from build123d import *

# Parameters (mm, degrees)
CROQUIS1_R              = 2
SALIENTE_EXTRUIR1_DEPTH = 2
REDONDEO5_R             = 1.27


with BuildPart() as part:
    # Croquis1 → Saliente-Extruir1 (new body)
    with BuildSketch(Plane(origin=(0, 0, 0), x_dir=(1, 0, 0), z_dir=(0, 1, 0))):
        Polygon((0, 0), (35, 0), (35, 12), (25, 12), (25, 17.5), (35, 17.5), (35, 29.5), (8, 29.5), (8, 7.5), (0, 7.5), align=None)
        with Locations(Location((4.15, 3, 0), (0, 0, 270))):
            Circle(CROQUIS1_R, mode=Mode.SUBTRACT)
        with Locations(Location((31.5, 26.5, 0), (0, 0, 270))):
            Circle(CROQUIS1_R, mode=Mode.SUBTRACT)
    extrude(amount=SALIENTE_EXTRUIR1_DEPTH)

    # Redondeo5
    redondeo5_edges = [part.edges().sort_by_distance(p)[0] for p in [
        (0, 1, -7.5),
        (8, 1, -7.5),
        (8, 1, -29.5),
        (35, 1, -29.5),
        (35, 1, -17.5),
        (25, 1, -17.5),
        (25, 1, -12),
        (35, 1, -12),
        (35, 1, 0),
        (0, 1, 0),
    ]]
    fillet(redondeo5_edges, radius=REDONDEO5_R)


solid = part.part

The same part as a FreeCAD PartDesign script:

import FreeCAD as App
import Part
import Sketcher
Q = App.Units.Quantity


def edges_at(feature, points):
    """Names of the edges that pass closest to the given points."""
    edges = feature.Shape.Edges
    near = lambda p: min(range(len(edges)), key=lambda i: edges[i].distToShape(Part.Vertex(*p))[0])
    return sorted({f"Edge{near(p) + 1}" for p in points})

doc = App.newDocument("Part")
body = doc.addObject("PartDesign::Body", "Body")

# Sketch on XZ plane
sketch1 = body.newObject("Sketcher::SketchObject", "Sketch")
sketch1.AttachmentSupport = (doc.getObject("XZ_Plane"), [""])
sketch1.MapMode = "FlatFace"
sketch1.addGeometry([
    Part.LineSegment(App.Vector(0, 0, 0), App.Vector(35, 0, 0)),  # 0
    Part.LineSegment(App.Vector(35, 0, 0), App.Vector(35, -12, 0)),  # 1
    Part.LineSegment(App.Vector(35, -12, 0), App.Vector(25, -12, 0)),  # 2
    Part.LineSegment(App.Vector(25, -12, 0), App.Vector(25, -17.5, 0)),  # 3
    Part.LineSegment(App.Vector(25, -17.5, 0), App.Vector(35, -17.5, 0)),  # 4
    Part.LineSegment(App.Vector(35, -17.5, 0), App.Vector(35, -29.5, 0)),  # 5
    Part.LineSegment(App.Vector(35, -29.5, 0), App.Vector(8, -29.5, 0)),  # 6
    Part.LineSegment(App.Vector(8, -29.5, 0), App.Vector(8, -7.5, 0)),  # 7
    Part.LineSegment(App.Vector(8, -7.5, 0), App.Vector(0, -7.5, 0)),  # 8
    Part.LineSegment(App.Vector(0, -7.5, 0), App.Vector(0, 0, 0)),  # 9
    Part.Circle(App.Vector(4.15, -3, 0), App.Vector(0, 0, 1), 2),  # 10
    Part.Circle(App.Vector(31.5, -26.5, 0), App.Vector(0, 0, 1), 2),  # 11
], False)
sketch1.addConstraint([
    Sketcher.Constraint("Coincident", 0, 2, 1, 1),
    Sketcher.Constraint("Coincident", 1, 2, 2, 1),
    Sketcher.Constraint("Coincident", 2, 2, 3, 1),
    Sketcher.Constraint("Coincident", 3, 2, 4, 1),
    Sketcher.Constraint("Coincident", 4, 2, 5, 1),
    Sketcher.Constraint("Coincident", 5, 2, 6, 1),
    Sketcher.Constraint("Coincident", 6, 2, 7, 1),
    Sketcher.Constraint("Coincident", 7, 2, 8, 1),
    Sketcher.Constraint("Coincident", 8, 2, 9, 1),
    Sketcher.Constraint("Coincident", 9, 2, 0, 1),
    Sketcher.Constraint("Horizontal", 0),
    Sketcher.Constraint("Vertical", 1),
    Sketcher.Constraint("Horizontal", 2),
    Sketcher.Constraint("Vertical", 3),
    Sketcher.Constraint("Horizontal", 4),
    Sketcher.Constraint("Vertical", 5),
    Sketcher.Constraint("Horizontal", 6),
    Sketcher.Constraint("Vertical", 7),
    Sketcher.Constraint("Horizontal", 8),
    Sketcher.Constraint("Vertical", 9),
    Sketcher.Constraint("Coincident", 9, 2, -1, 1),
    Sketcher.Constraint("Equal", 10, 11),
    Sketcher.Constraint("Vertical", 1, 2, 4, 2),
    Sketcher.Constraint("Equal", 1, 5),
    Sketcher.Constraint("Diameter", 10, Q("4 mm")),
    Sketcher.Constraint("DistanceX", 0, 1, 0, 2, Q("35 mm")),
    Sketcher.Constraint("DistanceX", 2, 2, 2, 1, Q("10 mm")),
    Sketcher.Constraint("DistanceX", 6, 2, 6, 1, Q("27 mm")),
    Sketcher.Constraint("DistanceY", 1, 2, 1, 1, Q("12 mm")),
    Sketcher.Constraint("DistanceY", 7, 1, 7, 2, Q("22 mm")),
    Sketcher.Constraint("DistanceY", 3, 2, 3, 1, Q("5.5 mm")),
    Sketcher.Constraint("DistanceY", 10, 3, -1, 1, Q("3 mm")),
    Sketcher.Constraint("DistanceY", 11, 3, 3, 2, Q("9 mm")),
    Sketcher.Constraint("DistanceX", -1, 1, 11, 3, Q("31.5 mm")),
    Sketcher.Constraint("DistanceX", -1, 1, 10, 3, Q("4.15 mm")),
])
pad1 = body.newObject("PartDesign::Pad", "Pad")
pad1.Profile = sketch1
pad1.Length = 2
pad1.Reversed = True
doc.recompute()

fillet = body.newObject("PartDesign::Fillet", "Fillet")
fillet.Base = (pad1, edges_at(pad1, [
    (0, 1, -7.5),
    (8, 1, -7.5),
    (8, 1, -29.5),
    (35, 1, -29.5),
    (35, 1, -17.5),
    (25, 1, -17.5),
    (25, 1, -12),
    (35, 1, -12),
    (35, 1, 0),
    (0, 1, 0),
]))
fillet.Radius = 1.27

doc.recompute()
